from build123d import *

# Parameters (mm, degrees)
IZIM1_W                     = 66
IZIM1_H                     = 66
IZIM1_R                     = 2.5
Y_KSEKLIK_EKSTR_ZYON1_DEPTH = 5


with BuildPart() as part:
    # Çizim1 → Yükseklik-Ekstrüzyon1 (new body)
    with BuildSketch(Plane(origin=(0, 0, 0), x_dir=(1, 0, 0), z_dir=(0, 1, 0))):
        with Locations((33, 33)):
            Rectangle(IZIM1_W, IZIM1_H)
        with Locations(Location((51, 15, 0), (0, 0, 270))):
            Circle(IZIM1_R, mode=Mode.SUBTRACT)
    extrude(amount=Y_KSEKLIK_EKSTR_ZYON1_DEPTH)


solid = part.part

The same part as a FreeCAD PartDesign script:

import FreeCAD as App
import Part
import Sketcher

V = App.Vector
Q = App.Units.Quantity


def add_polygon(sketch, points):
    """Adds a closed chain of lines whose ends are joined by coincident constraints."""
    first, n = sketch.GeometryCount, len(points)
    for a, b in zip(points, points[1:] + points[:1]):
        sketch.addGeometry(Part.LineSegment(App.Vector(*a, 0), App.Vector(*b, 0)), False)
    for i in range(n):
        sketch.addConstraint(Sketcher.Constraint("Coincident", first + i, 2, first + (i + 1) % n, 1))

doc = App.newDocument("Part")
body = doc.addObject("PartDesign::Body", "Body")

# Sketch on XZ plane
sketch1 = body.newObject("Sketcher::SketchObject", "Sketch")
sketch1.AttachmentSupport = (doc.getObject("XZ_Plane"), [""])
sketch1.MapMode = "FlatFace"
add_polygon(sketch1, [(0, -66), (0, 0), (66, 0), (66, -66)])  # lines 0-3
sketch1.addGeometry(Part.Circle(V(51, -15, 0), V(0, 0, 1), 2.5), False)  # 4
sketch1.addConstraint([
    Sketcher.Constraint("Vertical", 0),
    Sketcher.Constraint("Horizontal", 1),
    Sketcher.Constraint("Vertical", 2),
    Sketcher.Constraint("Horizontal", 3),
    Sketcher.Constraint("Coincident", 0, 2, -1, 1),
    Sketcher.Constraint("Equal", 3, 0),
    Sketcher.Constraint("Diameter", 4, Q("5 mm")),
    Sketcher.Constraint("DistanceX", 1, 1, 1, 2, Q("66 mm")),
    Sketcher.Constraint("DistanceX", -1, 1, 4, 3, Q("51 mm")),
    Sketcher.Constraint("DistanceY", 4, 3, -1, 1, Q("15 mm")),
])
pad1 = body.newObject("PartDesign::Pad", "Pad")
pad1.Profile = sketch1
pad1.Length = 5
pad1.Reversed = True

doc.recompute()
